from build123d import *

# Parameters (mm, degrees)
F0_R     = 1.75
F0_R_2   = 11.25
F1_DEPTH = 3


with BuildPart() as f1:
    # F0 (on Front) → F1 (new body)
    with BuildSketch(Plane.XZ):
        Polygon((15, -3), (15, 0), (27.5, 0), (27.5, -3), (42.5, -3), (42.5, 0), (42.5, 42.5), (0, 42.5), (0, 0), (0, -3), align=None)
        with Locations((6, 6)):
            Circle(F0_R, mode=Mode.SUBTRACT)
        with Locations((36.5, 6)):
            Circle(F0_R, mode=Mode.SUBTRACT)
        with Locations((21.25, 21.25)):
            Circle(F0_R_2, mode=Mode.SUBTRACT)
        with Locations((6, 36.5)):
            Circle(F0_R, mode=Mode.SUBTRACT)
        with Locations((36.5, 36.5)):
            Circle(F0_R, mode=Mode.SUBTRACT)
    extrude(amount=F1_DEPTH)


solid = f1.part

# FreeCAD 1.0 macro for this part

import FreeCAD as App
import Part
import Sketcher

doc = App.newDocument("Part")
params = doc.addObject("Spreadsheet::Sheet", "Params")
for row, (alias, value) in enumerate([
    ("sketch1_diameter", "3.5 mm"),
    ("sketch1_diameter2", "22.5 mm"),
    ("sketch1_width", "15 mm"),
    ("sketch1_height", "3 mm"),
    ("sketch1_width2", "12.5 mm"),
    ("pad1_length", "3 mm"),
], start=1):
    params.set(f"A{row}", alias)
    params.set(f"B{row}", "=" + value)
    params.setAlias(f"B{row}", alias)

body = doc.addObject("PartDesign::Body", "Body")

sketch1 = body.newObject("Sketcher::SketchObject", "Sketch")
sketch1.AttachmentSupport = (doc.getObject("XZ_Plane"), [""])
sketch1.MapMode = "FlatFace"
sketch1.addGeometry(Part.LineSegment(App.Vector(15, -3, 0), App.Vector(15, 0, 0)), False)
sketch1.addGeometry(Part.LineSegment(App.Vector(15, 0, 0), App.Vector(27.5, 0, 0)), False)
sketch1.addGeometry(Part.LineSegment(App.Vector(27.5, 0, 0), App.Vector(27.5, -3, 0)), False)
sketch1.addGeometry(Part.LineSegment(App.Vector(27.5, -3, 0), App.Vector(42.5, -3, 0)), False)
sketch1.addGeometry(Part.LineSegment(App.Vector(42.5, -3, 0), App.Vector(42.5, 42.5, 0)), False)
sketch1.addGeometry(Part.LineSegment(App.Vector(42.5, 42.5, 0), App.Vector(0, 42.5, 0)), False)
sketch1.addGeometry(Part.LineSegment(App.Vector(0, 42.5, 0), App.Vector(0, -3, 0)), False)
sketch1.addGeometry(Part.LineSegment(App.Vector(0, -3, 0), App.Vector(15, -3, 0)), False)
sketch1.addGeometry(Part.Circle(App.Vector(6, 6, 0), App.Vector(0, 0, 1), 1.8), False)
sketch1.addGeometry(Part.Circle(App.Vector(36.5, 6, 0), App.Vector(0, 0, 1), 1.8), False)
sketch1.addGeometry(Part.Circle(App.Vector(6, 36.5, 0), App.Vector(0, 0, 1), 1.8), False)
sketch1.addGeometry(Part.Circle(App.Vector(21.2, 21.2, 0), App.Vector(0, 0, 1), 11.2), False)
sketch1.addGeometry(Part.Circle(App.Vector(36.5, 36.5, 0), App.Vector(0, 0, 1), 1.8), False)
sketch1.addConstraint(Sketcher.Constraint("Coincident", 0, 2, 1, 1))
sketch1.addConstraint(Sketcher.Constraint("Coincident", 1, 2, 2, 1))
sketch1.addConstraint(Sketcher.Constraint("Coincident", 2, 2, 3, 1))
sketch1.addConstraint(Sketcher.Constraint("Coincident", 3, 2, 4, 1))
sketch1.addConstraint(Sketcher.Constraint("Coincident", 4, 2, 5, 1))
sketch1.addConstraint(Sketcher.Constraint("Coincident", 5, 2, 6, 1))
sketch1.addConstraint(Sketcher.Constraint("Coincident", 6, 2, 7, 1))
sketch1.addConstraint(Sketcher.Constraint("Coincident", 7, 2, 0, 1))
sketch1.addConstraint(Sketcher.Constraint("Vertical", 0))
sketch1.addConstraint(Sketcher.Constraint("Horizontal", 1))
sketch1.addConstraint(Sketcher.Constraint("Vertical", 2))
sketch1.addConstraint(Sketcher.Constraint("Horizontal", 3))
sketch1.addConstraint(Sketcher.Constraint("Vertical", 4))
sketch1.addConstraint(Sketcher.Constraint("Horizontal", 5))
sketch1.addConstraint(Sketcher.Constraint("Vertical", 6))
sketch1.addConstraint(Sketcher.Constraint("Horizontal", 7))
sketch1.addConstraint(Sketcher.Constraint("Equal", 8, 9))
sketch1.addConstraint(Sketcher.Constraint("Equal", 9, 10))
sketch1.addConstraint(Sketcher.Constraint("Equal", 10, 12))
sketch1.addConstraint(Sketcher.Constraint("PointOnObject", 0, 2, -1))
sketch1.addConstraint(Sketcher.Constraint("PointOnObject", 5, 2, -2))
sketch1.addConstraint(Sketcher.Constraint("Horizontal", 8, 3, 9, 3))
sketch1.addConstraint(Sketcher.Constraint("Horizontal", 10, 3, 12, 3))
sketch1.addConstraint(Sketcher.Constraint("Horizontal", 3, 2, 6, 2))
sketch1.addConstraint(Sketcher.Constraint("Vertical", 8, 3, 10, 3))
sketch1.addConstraint(Sketcher.Constraint("Vertical", 9, 3, 12, 3))
sketch1.addConstraint(Sketcher.Constraint("Equal", 3, 7))
sketch1.addConstraint(Sketcher.Constraint("Diameter", 8, 3.5))
sketch1.addConstraint(Sketcher.Constraint("Diameter", 11, 22.5))
sketch1.addConstraint(Sketcher.Constraint("DistanceX", 3, 1, 3, 2, 15.0))
sketch1.addConstraint(Sketcher.Constraint("DistanceY", 0, 1, 0, 2, 3.0))
sketch1.addConstraint(Sketcher.Constraint("DistanceX", 1, 1, 1, 2, 12.5))
sketch1.addConstraint(Sketcher.Constraint("DistanceY", 4, 1, 4, 2, 45.5))
sketch1.addConstraint(Sketcher.Constraint("DistanceX", -1, 1, 8, 3, 6.0))
sketch1.addConstraint(Sketcher.Constraint("DistanceY", -1, 1, 8, 3, 6.0))
sketch1.addConstraint(Sketcher.Constraint("DistanceX", 1, 2, 9, 3, 9.0))
sketch1.addConstraint(Sketcher.Constraint("DistanceY", 12, 3, 4, 2, 6.0))
sketch1.addConstraint(Sketcher.Constraint("DistanceX", -1, 1, 11, 3, 21.25))
sketch1.addConstraint(Sketcher.Constraint("DistanceY", -1, 1, 11, 3, 21.25))
sketch1.setExpression("Constraints[27]", "Params.sketch1_diameter")
sketch1.setExpression("Constraints[28]", "Params.sketch1_diameter2")
sketch1.setExpression("Constraints[29]", "Params.sketch1_width")
sketch1.setExpression("Constraints[30]", "Params.sketch1_height")
sketch1.setExpression("Constraints[31]", "Params.sketch1_width2")
pad1 = body.newObject("PartDesign::Pad", "Pad")
pad1.Profile = sketch1
pad1.setExpression("Length", "Params.pad1_length")

doc.recompute()
